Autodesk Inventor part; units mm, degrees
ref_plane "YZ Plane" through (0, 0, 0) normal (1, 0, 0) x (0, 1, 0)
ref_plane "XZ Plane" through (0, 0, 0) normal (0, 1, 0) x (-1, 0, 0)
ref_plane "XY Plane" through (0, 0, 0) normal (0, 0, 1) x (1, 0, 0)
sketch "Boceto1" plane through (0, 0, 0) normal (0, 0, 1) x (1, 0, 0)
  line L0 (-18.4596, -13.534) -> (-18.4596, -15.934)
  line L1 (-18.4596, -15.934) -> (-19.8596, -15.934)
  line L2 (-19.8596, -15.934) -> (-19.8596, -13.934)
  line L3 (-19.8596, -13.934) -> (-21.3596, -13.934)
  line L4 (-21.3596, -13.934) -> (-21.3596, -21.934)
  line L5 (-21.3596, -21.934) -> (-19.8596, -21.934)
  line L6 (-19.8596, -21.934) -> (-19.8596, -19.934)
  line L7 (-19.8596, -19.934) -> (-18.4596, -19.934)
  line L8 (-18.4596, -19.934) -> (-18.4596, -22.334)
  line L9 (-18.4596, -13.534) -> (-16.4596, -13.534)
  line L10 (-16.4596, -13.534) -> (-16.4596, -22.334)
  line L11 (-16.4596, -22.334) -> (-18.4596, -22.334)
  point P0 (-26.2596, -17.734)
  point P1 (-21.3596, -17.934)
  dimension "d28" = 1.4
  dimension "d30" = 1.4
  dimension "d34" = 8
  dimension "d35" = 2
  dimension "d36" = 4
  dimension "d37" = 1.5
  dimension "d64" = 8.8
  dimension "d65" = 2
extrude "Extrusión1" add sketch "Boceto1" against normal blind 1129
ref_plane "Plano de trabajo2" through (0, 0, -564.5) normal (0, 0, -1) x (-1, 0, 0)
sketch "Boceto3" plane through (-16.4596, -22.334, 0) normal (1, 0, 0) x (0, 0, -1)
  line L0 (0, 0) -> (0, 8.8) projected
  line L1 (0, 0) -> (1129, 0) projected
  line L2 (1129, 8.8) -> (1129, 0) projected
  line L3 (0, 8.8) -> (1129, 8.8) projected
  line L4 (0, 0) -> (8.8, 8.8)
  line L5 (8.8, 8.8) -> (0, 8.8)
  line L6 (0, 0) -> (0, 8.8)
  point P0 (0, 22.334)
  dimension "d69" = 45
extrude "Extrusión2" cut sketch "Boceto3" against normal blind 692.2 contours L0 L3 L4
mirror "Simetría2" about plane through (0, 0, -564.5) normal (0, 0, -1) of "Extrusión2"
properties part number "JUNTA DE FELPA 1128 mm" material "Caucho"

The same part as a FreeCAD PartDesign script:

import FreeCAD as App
import Part
import Sketcher

V = App.Vector
Q = App.Units.Quantity


def add_polygon(sketch, points):
    """Adds a closed chain of lines whose ends are joined by coincident constraints."""
    first, n = sketch.GeometryCount, len(points)
    for a, b in zip(points, points[1:] + points[:1]):
        sketch.addGeometry(Part.LineSegment(App.Vector(*a, 0), App.Vector(*b, 0)), False)
    for i in range(n):
        sketch.addConstraint(Sketcher.Constraint("Coincident", first + i, 2, first + (i + 1) % n, 1))

doc = App.newDocument("Part")
body = doc.addObject("PartDesign::Body", "Body")

# Sketch on XY plane
sketch1 = body.newObject("Sketcher::SketchObject", "Sketch")
sketch1.AttachmentSupport = (doc.getObject("XY_Plane"), [""])
sketch1.MapMode = "FlatFace"
add_polygon(sketch1, [(-16.5, -13.5), (-18.5, -13.5), (-18.5, -15.9), (-19.9, -15.9), (-19.9, -13.9), (-21.4, -13.9), (-21.4, -21.9), (-19.9, -21.9), (-19.9, -19.9), (-18.5, -19.9), (-18.5, -22.3), (-16.5, -22.3)])  # lines 0-11
sketch1.addConstraint([
    Sketcher.Constraint("Horizontal", 0),
    Sketcher.Constraint("Vertical", 1),
    Sketcher.Constraint("Horizontal", 2),
    Sketcher.Constraint("Vertical", 3),
    Sketcher.Constraint("Horizontal", 4),
    Sketcher.Constraint("Vertical", 5),
    Sketcher.Constraint("Horizontal", 6),
    Sketcher.Constraint("Vertical", 7),
    Sketcher.Constraint("Horizontal", 8),
    Sketcher.Constraint("Vertical", 9),
    Sketcher.Constraint("Horizontal", 10),
    Sketcher.Constraint("Vertical", 11),
    Sketcher.Constraint("Vertical", 3, 2, 6, 2),
    Sketcher.Constraint("Vertical", 1, 2, 8, 2),
    Sketcher.Constraint("Equal", 10, 3),
    Sketcher.Constraint("Equal", 3, 7),
    Sketcher.Constraint("Equal", 1, 9),
    Sketcher.Constraint("DistanceX", 0, 2, 0, 1, Q("2 mm")),
    Sketcher.Constraint("DistanceY", 5, 2, 5, 1, Q("8 mm")),
    Sketcher.Constraint("DistanceX", 2, 2, 2, 1, Q("1.4 mm")),
    Sketcher.Constraint("DistanceX", 4, 2, 4, 1, Q("1.5 mm")),
    Sketcher.Constraint("DistanceY", 11, 1, 11, 2, Q("8.8 mm")),
    Sketcher.Constraint("DistanceY", 0, 2, -1, 1, Q("13.534 mm")),
    Sketcher.Constraint("DistanceX", 0, 2, -1, 1, Q("18.4596 mm")),
])
pad1 = body.newObject("PartDesign::Pad", "Pad")
pad1.Profile = sketch1
pad1.Length = 1129
pad1.Reversed = True

# Sketch on YZ plane
sketch2 = body.newObject("Sketcher::SketchObject", "Sketch001")
sketch2.AttachmentSupport = (doc.getObject("YZ_Plane"), [""])
sketch2.MapMode = "FlatFace"
sketch2.AttachmentOffset = App.Placement(V(0, 0, -16.4596), App.Rotation())
add_polygon(sketch2, [(-14, 0), (-22, 0), (-14, -9)])  # lines 0-2
sketch2.addConstraint([
    Sketcher.Constraint("Horizontal", 0),
    Sketcher.Constraint("Vertical", 2),
    Sketcher.Constraint("PointOnObject", 0, 2, -1),
    Sketcher.Constraint("Equal", 0, 2),
    Sketcher.Constraint("DistanceX", 0, 2, 0, 1, Q("8.8 mm")),
    Sketcher.Constraint("DistanceX", 0, 2, -1, 1, Q("22.334 mm")),
])
pocket1 = body.newObject("PartDesign::Pocket", "Pocket")
pocket1.Profile = sketch2
pocket1.Length = 692.2
doc.recompute()

datumplane = body.newObject("PartDesign::Plane", "DatumPlane")
datumplane.AttachmentSupport = (doc.getObject("XY_Plane"), [""])
datumplane.MapMode = "FlatFace"
datumplane.AttachmentOffset = App.Placement(V(0, 0, -564.5), App.Rotation())
mirrored = body.newObject("PartDesign::Mirrored", "Mirrored")
mirrored.Originals = [pocket1]
mirrored.MirrorPlane = (datumplane, [""])
body.Tip = mirrored

doc.recompute()
